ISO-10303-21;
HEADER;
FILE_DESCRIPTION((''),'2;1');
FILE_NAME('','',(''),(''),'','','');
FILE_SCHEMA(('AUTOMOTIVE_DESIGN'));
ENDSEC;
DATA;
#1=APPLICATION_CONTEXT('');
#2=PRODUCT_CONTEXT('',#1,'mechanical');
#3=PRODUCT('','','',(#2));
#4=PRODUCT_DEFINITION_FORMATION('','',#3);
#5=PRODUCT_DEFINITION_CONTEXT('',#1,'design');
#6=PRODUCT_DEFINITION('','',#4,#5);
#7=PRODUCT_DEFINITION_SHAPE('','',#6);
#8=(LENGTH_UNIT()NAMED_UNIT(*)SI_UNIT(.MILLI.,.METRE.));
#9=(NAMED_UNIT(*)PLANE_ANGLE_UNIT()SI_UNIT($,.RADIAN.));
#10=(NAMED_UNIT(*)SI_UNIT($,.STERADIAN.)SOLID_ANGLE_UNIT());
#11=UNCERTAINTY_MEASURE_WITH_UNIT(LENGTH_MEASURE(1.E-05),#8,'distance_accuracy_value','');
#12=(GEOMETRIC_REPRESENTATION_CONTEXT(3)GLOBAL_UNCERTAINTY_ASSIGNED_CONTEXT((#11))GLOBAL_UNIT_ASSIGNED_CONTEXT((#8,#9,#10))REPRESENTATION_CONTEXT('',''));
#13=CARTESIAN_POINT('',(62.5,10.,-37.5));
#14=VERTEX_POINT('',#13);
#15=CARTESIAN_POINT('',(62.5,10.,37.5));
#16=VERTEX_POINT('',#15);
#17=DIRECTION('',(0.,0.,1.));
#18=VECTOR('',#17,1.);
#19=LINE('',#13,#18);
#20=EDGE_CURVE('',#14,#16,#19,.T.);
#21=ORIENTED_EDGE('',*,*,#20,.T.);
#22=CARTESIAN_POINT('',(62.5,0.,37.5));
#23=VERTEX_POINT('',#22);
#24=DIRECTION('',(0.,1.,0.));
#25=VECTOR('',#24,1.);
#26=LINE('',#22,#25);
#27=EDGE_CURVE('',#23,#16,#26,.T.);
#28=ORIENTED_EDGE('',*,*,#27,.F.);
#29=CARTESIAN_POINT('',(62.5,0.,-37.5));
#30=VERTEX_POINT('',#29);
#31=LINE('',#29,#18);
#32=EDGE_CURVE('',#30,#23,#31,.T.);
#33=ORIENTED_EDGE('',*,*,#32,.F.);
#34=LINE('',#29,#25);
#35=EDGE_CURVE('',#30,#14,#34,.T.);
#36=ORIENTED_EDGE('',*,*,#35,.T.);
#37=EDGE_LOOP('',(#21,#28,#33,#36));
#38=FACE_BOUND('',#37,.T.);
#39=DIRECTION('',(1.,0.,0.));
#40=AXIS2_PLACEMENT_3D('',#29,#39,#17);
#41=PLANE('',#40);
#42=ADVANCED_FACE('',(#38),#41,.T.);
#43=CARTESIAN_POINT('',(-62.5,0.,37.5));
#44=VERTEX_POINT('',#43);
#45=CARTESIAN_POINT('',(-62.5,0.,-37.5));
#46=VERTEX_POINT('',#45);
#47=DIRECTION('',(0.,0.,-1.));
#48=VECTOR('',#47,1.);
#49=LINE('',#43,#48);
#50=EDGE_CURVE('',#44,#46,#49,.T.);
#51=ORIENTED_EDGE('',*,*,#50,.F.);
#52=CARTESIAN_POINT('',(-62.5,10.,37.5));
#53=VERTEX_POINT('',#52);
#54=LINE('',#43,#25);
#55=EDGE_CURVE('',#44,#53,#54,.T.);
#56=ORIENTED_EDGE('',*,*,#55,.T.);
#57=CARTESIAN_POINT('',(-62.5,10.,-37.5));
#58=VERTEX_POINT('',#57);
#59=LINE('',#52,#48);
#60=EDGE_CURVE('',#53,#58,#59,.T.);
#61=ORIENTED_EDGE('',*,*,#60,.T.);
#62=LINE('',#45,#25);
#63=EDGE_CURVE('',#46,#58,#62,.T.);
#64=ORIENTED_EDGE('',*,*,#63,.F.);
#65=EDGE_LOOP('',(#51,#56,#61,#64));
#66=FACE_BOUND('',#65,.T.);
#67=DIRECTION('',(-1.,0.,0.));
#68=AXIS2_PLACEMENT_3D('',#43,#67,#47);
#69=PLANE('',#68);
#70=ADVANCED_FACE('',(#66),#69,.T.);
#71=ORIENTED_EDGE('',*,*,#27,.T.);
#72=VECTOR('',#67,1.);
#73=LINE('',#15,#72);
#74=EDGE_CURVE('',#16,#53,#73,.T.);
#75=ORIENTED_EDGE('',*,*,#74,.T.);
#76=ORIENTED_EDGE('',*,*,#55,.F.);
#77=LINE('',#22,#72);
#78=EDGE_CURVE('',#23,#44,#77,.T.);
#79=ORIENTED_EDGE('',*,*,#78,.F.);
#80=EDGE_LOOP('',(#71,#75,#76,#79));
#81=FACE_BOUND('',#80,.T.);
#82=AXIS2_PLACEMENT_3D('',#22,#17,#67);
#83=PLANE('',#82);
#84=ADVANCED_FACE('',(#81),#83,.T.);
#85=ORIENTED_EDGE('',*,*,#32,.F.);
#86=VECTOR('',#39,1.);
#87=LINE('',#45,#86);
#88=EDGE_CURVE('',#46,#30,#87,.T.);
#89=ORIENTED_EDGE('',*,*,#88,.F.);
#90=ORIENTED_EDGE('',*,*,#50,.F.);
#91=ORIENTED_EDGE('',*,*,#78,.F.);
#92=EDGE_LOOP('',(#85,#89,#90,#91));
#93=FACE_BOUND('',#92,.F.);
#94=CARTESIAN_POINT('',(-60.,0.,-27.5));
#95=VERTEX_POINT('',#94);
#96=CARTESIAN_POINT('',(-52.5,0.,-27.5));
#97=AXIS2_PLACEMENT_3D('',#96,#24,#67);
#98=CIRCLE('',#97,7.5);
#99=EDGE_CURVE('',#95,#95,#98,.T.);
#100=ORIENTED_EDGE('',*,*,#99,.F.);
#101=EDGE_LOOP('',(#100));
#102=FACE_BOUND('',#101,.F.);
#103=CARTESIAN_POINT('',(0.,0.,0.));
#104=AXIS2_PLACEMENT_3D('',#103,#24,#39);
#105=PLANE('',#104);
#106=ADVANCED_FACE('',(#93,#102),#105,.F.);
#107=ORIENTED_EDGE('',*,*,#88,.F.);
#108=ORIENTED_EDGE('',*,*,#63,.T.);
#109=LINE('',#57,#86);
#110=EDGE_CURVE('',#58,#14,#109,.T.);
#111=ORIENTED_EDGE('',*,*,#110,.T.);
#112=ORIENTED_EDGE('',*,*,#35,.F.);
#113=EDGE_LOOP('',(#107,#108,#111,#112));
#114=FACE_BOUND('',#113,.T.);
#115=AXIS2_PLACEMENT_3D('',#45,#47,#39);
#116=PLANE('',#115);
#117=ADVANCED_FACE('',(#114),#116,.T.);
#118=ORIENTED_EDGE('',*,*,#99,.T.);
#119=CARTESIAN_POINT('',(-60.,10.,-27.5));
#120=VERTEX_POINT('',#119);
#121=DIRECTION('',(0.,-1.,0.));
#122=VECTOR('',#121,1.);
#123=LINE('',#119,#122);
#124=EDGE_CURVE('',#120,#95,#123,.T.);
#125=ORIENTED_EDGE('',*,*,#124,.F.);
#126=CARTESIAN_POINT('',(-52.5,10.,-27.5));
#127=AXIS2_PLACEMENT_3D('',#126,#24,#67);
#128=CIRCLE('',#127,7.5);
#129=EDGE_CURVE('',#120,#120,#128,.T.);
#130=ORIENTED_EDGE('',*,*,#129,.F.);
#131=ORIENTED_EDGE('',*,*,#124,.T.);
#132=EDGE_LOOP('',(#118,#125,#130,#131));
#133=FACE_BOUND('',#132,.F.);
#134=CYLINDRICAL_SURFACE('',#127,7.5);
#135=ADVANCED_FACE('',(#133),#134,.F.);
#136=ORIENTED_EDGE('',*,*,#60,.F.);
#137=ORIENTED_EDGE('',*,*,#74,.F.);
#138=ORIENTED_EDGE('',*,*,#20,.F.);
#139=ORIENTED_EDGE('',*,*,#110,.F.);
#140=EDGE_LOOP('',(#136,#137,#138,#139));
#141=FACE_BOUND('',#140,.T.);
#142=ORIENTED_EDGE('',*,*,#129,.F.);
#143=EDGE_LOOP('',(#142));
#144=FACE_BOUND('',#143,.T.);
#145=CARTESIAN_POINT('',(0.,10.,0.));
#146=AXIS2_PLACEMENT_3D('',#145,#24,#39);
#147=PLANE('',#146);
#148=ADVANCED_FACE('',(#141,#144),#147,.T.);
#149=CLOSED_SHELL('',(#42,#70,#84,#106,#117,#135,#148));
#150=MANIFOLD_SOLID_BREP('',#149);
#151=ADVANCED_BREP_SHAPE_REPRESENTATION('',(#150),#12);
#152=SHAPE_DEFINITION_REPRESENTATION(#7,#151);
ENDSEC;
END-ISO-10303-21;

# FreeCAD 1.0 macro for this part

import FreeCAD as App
import Part
import Sketcher

V = App.Vector


def add_polygon(sketch, points):
    """Adds a closed chain of lines whose ends are joined by coincident constraints."""
    first, n = sketch.GeometryCount, len(points)
    for a, b in zip(points, points[1:] + points[:1]):
        sketch.addGeometry(Part.LineSegment(App.Vector(*a, 0), App.Vector(*b, 0)), False)
    for i in range(n):
        sketch.addConstraint(Sketcher.Constraint("Coincident", first + i, 2, first + (i + 1) % n, 1))

doc = App.newDocument("Part")
body = doc.addObject("PartDesign::Body", "Body")

# Sketch on XZ plane
sketch1 = doc.addObject("Sketcher::SketchObject", "Sketch")
body.addObject(sketch1)
sketch1.AttachmentSupport = (doc.XZ_Plane, [""])
sketch1.MapMode = "FlatFace"
add_polygon(sketch1, [(62, -38), (-62, -38), (-62, 38), (62, 38)])  # lines 0-3
sketch1.addConstraint(Sketcher.Constraint("Horizontal", 0))
sketch1.addConstraint(Sketcher.Constraint("Vertical", 1))
sketch1.addConstraint(Sketcher.Constraint("Horizontal", 2))
sketch1.addConstraint(Sketcher.Constraint("Vertical", 3))
sketch1.addConstraint(Sketcher.Constraint("Symmetric", 0, 2, 2, 2, -1, 1))
sketch1.addConstraint(Sketcher.Constraint("DistanceX", 0, 2, 0, 1, 125.0))
sketch1.addConstraint(Sketcher.Constraint("DistanceY", 1, 1, 1, 2, 75.0))
pad1 = doc.addObject("PartDesign::Pad", "Pad")
body.addObject(pad1)
pad1.Profile = sketch1
pad1.Length = 10
pad1.Reversed = True

# Sketch on XZ plane
sketch2 = doc.addObject("Sketcher::SketchObject", "Sketch001")
body.addObject(sketch2)
sketch2.AttachmentSupport = (doc.XZ_Plane, [""])
sketch2.MapMode = "FlatFace"
sketch2.AttachmentOffset = App.Placement(V(0, 0, -10), App.Rotation())
sketch2.addGeometry(Part.Circle(V(-52, -28, 0), V(0, 0, 1), 8), False)
sketch2.addConstraint(Sketcher.Constraint("Diameter", 0, 15.0))
sketch2.addConstraint(Sketcher.Constraint("DistanceX", 0, 3, -1, 1, 52.5))
sketch2.addConstraint(Sketcher.Constraint("DistanceY", 0, 3, -1, 1, 27.5))
pocket1 = doc.addObject("PartDesign::Pocket", "Pocket")
body.addObject(pocket1)
pocket1.Profile = sketch2
pocket1.Type = "ThroughAll"
pocket1.Reversed = True

doc.recompute()
